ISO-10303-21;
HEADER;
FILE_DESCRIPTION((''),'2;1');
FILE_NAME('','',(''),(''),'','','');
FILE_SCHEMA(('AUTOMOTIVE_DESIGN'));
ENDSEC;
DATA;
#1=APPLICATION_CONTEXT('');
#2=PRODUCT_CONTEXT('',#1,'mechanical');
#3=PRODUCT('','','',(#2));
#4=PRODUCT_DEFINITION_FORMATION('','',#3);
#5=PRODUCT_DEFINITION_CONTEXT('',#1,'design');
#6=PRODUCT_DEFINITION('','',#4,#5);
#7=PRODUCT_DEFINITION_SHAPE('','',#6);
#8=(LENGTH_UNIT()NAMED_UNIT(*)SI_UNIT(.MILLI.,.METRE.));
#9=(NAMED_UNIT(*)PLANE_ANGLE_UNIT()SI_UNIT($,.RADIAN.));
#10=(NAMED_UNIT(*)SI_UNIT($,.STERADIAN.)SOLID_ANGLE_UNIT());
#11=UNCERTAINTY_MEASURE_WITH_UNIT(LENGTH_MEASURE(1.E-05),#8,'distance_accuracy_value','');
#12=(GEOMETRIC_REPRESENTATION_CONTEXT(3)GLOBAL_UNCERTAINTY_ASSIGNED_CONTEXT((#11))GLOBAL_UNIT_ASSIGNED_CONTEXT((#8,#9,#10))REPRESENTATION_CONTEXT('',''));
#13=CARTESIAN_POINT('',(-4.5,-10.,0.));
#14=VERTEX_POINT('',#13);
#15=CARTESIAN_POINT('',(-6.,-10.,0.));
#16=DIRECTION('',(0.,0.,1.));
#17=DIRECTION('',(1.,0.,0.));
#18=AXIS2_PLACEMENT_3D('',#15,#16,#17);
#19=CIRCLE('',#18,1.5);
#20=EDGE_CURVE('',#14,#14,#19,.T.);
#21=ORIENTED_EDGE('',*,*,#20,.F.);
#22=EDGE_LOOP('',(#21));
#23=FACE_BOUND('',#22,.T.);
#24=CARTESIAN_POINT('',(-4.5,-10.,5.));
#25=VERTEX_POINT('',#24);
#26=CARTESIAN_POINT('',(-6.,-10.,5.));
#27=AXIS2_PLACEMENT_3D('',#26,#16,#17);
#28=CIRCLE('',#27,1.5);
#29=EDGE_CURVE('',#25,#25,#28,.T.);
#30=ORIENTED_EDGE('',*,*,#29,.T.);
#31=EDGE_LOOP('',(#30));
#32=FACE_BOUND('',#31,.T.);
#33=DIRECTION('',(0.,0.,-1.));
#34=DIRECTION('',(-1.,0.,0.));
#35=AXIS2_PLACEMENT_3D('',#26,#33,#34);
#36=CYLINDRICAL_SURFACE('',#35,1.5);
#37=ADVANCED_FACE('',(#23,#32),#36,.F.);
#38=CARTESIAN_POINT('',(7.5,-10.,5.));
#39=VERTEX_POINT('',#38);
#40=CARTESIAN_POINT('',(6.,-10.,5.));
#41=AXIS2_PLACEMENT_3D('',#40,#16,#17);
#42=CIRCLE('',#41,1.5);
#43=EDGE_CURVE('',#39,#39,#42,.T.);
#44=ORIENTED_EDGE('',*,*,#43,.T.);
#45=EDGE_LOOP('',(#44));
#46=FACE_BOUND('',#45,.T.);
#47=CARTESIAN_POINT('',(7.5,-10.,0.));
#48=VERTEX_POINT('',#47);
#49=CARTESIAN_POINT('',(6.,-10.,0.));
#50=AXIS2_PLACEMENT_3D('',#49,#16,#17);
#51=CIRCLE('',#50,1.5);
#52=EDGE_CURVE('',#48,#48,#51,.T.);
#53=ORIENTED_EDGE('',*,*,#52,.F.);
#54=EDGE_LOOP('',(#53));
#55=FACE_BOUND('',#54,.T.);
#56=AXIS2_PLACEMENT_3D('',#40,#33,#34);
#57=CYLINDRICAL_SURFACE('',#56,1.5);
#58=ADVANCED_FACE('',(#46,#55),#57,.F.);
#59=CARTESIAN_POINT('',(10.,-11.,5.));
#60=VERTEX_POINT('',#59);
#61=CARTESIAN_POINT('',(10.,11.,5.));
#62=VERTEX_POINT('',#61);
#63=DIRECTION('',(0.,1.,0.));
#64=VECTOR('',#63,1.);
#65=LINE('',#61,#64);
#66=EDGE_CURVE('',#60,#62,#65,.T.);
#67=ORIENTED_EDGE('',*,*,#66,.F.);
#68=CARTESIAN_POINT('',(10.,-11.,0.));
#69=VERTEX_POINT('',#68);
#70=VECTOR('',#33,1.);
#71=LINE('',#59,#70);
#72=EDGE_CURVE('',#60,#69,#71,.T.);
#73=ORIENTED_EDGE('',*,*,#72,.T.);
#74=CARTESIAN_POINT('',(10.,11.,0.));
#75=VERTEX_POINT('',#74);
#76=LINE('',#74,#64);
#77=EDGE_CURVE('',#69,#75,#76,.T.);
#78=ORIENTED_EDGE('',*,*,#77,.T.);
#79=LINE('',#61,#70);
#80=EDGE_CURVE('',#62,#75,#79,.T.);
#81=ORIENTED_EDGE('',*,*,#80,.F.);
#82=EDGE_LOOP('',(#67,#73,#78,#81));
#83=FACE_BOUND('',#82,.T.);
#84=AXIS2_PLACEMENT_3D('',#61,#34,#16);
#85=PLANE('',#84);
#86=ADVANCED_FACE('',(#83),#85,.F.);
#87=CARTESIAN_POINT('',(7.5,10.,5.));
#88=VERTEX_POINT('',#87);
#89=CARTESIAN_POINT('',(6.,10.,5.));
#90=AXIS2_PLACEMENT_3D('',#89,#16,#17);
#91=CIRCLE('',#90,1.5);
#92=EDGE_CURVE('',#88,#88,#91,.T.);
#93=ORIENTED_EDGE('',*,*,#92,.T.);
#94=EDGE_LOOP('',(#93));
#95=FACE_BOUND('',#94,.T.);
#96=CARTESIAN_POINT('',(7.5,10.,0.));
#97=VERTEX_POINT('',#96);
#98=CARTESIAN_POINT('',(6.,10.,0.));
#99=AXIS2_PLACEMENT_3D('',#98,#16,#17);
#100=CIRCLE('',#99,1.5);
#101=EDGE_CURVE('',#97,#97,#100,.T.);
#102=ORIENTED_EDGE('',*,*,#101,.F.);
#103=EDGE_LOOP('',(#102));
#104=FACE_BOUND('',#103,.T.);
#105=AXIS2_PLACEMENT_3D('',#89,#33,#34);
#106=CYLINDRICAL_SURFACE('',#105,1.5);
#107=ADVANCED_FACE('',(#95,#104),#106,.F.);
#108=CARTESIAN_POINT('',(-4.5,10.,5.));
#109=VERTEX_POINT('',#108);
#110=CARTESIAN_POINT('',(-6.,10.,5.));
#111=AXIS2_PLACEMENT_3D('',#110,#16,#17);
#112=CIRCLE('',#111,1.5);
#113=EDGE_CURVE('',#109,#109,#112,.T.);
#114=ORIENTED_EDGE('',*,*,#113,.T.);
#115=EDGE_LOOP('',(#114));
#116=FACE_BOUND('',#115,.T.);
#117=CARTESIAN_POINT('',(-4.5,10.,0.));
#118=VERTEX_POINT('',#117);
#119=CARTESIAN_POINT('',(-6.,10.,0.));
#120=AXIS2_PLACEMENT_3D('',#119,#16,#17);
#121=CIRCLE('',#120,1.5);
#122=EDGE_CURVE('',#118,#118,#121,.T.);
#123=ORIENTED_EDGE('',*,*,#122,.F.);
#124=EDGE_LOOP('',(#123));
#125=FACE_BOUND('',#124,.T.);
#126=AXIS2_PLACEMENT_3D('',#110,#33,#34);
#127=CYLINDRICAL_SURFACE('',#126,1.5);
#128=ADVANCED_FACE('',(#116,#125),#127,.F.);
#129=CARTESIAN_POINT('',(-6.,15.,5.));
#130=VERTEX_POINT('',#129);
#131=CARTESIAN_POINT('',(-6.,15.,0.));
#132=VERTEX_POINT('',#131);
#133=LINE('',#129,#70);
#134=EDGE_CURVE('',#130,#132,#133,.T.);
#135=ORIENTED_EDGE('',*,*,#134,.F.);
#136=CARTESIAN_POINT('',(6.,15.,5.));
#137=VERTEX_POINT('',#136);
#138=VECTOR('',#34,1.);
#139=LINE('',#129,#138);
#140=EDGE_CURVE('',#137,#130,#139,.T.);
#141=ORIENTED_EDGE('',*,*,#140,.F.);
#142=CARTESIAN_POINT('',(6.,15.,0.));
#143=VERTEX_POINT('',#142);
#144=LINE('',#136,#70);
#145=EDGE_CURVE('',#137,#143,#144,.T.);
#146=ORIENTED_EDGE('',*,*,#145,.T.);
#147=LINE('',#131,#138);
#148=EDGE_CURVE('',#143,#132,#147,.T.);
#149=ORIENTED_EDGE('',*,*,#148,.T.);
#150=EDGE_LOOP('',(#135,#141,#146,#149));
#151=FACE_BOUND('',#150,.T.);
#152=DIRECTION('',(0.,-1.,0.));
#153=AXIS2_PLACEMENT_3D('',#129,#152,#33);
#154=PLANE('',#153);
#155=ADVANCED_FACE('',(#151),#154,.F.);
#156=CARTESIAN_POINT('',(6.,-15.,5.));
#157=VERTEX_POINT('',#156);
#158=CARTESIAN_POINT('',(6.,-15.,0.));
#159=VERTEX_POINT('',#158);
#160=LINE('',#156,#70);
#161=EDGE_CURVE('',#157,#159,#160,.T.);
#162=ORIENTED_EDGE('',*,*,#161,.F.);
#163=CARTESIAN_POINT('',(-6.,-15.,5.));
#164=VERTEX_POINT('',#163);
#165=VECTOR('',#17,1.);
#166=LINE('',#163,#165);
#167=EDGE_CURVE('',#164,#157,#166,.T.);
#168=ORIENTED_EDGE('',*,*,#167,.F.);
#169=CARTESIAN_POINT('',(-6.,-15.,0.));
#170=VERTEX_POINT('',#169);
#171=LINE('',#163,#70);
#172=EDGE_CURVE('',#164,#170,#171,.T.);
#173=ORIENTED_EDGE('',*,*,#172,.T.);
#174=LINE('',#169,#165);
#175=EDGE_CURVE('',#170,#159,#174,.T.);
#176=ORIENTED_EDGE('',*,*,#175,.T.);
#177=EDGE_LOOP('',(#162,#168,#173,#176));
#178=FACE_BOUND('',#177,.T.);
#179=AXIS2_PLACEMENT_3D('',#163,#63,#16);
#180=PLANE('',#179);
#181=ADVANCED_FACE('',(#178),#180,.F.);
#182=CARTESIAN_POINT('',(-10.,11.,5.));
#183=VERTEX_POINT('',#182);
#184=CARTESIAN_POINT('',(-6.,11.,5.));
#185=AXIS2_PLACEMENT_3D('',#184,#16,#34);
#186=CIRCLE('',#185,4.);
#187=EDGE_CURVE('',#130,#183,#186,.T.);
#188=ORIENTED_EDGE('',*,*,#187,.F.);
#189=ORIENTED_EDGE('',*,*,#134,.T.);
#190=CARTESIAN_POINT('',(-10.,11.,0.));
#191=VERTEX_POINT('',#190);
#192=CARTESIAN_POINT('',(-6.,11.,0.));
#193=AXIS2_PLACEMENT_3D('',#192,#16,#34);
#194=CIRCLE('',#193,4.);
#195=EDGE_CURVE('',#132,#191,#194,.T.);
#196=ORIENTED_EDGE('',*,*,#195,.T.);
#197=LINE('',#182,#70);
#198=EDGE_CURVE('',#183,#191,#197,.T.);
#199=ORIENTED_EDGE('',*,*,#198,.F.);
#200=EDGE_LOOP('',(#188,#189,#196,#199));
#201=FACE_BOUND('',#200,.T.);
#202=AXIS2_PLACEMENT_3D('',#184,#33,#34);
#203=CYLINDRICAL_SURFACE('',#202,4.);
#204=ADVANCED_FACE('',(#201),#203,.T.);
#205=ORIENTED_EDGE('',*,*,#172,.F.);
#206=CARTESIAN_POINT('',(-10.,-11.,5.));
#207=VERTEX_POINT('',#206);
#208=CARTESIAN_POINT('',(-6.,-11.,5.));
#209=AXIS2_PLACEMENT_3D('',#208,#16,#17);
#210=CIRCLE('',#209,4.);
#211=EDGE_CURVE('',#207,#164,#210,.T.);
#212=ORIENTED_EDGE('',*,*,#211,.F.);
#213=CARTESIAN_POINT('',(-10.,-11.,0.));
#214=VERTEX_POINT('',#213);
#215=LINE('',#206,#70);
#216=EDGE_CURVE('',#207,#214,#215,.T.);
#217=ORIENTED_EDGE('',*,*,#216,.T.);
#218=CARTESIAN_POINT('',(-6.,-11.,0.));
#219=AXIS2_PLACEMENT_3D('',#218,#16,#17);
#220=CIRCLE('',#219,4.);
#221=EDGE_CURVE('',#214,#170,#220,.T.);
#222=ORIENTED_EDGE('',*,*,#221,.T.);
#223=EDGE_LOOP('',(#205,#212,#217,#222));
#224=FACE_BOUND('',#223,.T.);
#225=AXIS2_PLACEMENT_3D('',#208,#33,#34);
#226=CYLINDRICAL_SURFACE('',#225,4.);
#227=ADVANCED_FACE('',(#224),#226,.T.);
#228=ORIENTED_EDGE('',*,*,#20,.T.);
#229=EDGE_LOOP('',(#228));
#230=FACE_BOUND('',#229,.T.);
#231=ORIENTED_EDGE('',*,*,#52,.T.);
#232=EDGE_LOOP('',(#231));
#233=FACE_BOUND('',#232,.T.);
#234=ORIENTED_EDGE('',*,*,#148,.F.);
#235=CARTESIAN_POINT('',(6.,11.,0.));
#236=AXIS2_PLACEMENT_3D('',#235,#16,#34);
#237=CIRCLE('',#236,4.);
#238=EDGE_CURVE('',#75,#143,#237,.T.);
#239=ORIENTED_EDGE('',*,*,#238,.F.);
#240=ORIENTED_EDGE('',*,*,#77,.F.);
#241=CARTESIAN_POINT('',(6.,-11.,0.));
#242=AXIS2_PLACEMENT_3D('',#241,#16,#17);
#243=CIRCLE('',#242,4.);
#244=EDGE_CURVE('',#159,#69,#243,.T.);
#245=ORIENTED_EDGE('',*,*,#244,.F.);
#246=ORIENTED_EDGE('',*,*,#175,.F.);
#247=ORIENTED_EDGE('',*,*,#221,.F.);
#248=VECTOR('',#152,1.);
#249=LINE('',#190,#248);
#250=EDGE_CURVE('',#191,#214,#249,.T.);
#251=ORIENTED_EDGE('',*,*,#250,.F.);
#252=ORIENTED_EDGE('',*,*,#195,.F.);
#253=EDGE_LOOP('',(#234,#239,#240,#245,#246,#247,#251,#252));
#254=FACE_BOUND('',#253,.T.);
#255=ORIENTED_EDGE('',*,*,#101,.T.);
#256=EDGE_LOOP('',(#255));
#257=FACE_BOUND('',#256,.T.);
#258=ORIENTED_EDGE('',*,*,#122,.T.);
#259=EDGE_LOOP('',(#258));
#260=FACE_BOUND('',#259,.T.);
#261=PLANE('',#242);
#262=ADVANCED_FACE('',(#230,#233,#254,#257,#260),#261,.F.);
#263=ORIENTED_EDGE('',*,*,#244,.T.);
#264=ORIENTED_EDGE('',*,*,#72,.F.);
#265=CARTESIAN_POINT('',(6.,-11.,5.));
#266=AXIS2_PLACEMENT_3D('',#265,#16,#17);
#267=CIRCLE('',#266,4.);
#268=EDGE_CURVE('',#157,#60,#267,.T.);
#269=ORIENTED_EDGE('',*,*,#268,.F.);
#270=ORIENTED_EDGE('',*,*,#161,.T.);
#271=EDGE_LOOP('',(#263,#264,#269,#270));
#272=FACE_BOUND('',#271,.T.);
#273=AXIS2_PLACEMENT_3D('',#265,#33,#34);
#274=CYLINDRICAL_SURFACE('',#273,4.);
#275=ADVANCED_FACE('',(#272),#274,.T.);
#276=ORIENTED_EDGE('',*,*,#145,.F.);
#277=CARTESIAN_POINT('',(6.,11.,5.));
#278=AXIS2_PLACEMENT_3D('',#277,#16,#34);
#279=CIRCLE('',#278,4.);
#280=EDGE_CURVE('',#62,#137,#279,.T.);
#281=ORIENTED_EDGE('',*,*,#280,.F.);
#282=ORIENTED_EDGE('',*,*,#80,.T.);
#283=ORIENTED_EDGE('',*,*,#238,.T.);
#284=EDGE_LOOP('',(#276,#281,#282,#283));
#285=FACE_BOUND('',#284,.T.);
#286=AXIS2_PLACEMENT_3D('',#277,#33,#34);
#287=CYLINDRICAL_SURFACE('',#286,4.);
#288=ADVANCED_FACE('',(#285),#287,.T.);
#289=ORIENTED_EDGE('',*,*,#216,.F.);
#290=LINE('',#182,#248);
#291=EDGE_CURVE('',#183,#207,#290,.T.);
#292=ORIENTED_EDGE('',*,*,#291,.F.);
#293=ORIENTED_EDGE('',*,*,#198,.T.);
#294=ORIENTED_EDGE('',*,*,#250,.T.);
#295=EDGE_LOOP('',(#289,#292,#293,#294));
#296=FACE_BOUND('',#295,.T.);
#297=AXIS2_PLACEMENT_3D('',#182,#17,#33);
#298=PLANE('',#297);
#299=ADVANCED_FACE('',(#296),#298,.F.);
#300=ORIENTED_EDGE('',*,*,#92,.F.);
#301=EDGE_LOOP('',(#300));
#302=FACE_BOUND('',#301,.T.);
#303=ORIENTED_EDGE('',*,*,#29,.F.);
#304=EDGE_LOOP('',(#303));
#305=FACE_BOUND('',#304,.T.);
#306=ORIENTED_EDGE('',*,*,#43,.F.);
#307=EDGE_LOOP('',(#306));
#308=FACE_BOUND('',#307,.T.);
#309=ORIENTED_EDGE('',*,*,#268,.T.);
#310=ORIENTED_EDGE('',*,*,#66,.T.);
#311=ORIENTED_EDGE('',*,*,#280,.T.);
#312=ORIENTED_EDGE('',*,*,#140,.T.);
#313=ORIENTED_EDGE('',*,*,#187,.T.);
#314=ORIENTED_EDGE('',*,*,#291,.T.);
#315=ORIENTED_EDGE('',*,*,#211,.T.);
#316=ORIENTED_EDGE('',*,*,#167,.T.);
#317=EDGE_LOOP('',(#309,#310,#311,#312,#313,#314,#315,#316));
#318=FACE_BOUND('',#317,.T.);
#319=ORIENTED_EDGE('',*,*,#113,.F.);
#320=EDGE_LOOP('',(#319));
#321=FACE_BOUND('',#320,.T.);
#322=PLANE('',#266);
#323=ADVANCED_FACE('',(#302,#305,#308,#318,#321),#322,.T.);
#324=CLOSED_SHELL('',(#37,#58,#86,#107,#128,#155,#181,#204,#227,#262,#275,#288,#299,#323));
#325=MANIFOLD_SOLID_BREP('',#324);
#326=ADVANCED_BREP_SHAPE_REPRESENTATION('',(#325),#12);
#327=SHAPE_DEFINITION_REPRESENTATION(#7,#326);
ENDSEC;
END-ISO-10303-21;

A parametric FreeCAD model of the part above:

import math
import FreeCAD as App
import Part
import Sketcher

V = App.Vector

doc = App.newDocument("Part")
body = doc.addObject("PartDesign::Body", "Body")

sketch1 = body.newObject("Sketcher::SketchObject", "Sketch")
sketch1.AttachmentSupport = (doc.getObject("XY_Plane"), [""])
sketch1.MapMode = "FlatFace"
sketch1.addGeometry([
    Part.LineSegment(V(6, 15, 0), V(-6, 15, 0)),
    Part.ArcOfCircle(Part.Circle(V(-6, 11, 0), V(0, 0, 1), 4), math.radians(90), math.radians(180)),
    Part.LineSegment(V(-10, 11, 0), V(-10, -11, 0)),
    Part.ArcOfCircle(Part.Circle(V(-6, -11, 0), V(0, 0, 1), 4), math.radians(180), math.radians(270)),
    Part.LineSegment(V(-6, -15, 0), V(6, -15, 0)),
    Part.ArcOfCircle(Part.Circle(V(6, -11, 0), V(0, 0, 1), 4), math.radians(-90), math.radians(0)),
    Part.LineSegment(V(10, -11, 0), V(10, 11, 0)),
    Part.ArcOfCircle(Part.Circle(V(6, 11, 0), V(0, 0, 1), 4), math.radians(0), math.radians(90)),
    Part.Circle(V(6, -10, 0), V(0, 0, 1), 1.5),
    Part.Circle(V(-6, -10, 0), V(0, 0, 1), 1.5),
    Part.Circle(V(6, 10, 0), V(0, 0, 1), 1.5),
    Part.Circle(V(-6, 10, 0), V(0, 0, 1), 1.5),
], False)
sketch1.addConstraint([
    Sketcher.Constraint("Tangent", 0, 2, 1, 1),
    Sketcher.Constraint("Tangent", 1, 2, 2, 1),
    Sketcher.Constraint("Tangent", 2, 2, 3, 1),
    Sketcher.Constraint("Tangent", 3, 2, 4, 1),
    Sketcher.Constraint("Tangent", 4, 2, 5, 1),
    Sketcher.Constraint("Tangent", 5, 2, 6, 1),
    Sketcher.Constraint("Tangent", 6, 2, 7, 1),
    Sketcher.Constraint("Tangent", 7, 2, 0, 1),
    Sketcher.Constraint("Horizontal", 0),
    Sketcher.Constraint("Vertical", 2),
    Sketcher.Constraint("Horizontal", 4),
    Sketcher.Constraint("Vertical", 6),
    Sketcher.Constraint("Equal", 1, 3),
    Sketcher.Constraint("Equal", 3, 5),
    Sketcher.Constraint("Equal", 5, 7),
    Sketcher.Constraint("Equal", 8, 9),
    Sketcher.Constraint("Equal", 9, 10),
    Sketcher.Constraint("Equal", 10, 11),
    Sketcher.Constraint("Symmetric", 1, 3, 5, 3, -1, 1),
    Sketcher.Constraint("Symmetric", 9, 3, 10, 3, -1, 1),
    Sketcher.Constraint("Symmetric", 8, 3, 11, 3, -1, 1),
    Sketcher.Constraint("Symmetric", 8, 3, 9, 3, -2),
    Sketcher.Constraint("Vertical", 7, 3, 8, 3),
    Sketcher.Constraint("Diameter", 8, 3.0),
    Sketcher.Constraint("Radius", 1, 4.0),
    Sketcher.Constraint("DistanceX", 0, 2, 0, 1, 12.0),
    Sketcher.Constraint("DistanceY", 2, 2, 2, 1, 22.0),
    Sketcher.Constraint("DistanceY", 8, 3, -1, 1, 10.0),
])
pad1 = body.newObject("PartDesign::Pad", "Pad")
pad1.Profile = sketch1
pad1.Length = 5

doc.recompute()
